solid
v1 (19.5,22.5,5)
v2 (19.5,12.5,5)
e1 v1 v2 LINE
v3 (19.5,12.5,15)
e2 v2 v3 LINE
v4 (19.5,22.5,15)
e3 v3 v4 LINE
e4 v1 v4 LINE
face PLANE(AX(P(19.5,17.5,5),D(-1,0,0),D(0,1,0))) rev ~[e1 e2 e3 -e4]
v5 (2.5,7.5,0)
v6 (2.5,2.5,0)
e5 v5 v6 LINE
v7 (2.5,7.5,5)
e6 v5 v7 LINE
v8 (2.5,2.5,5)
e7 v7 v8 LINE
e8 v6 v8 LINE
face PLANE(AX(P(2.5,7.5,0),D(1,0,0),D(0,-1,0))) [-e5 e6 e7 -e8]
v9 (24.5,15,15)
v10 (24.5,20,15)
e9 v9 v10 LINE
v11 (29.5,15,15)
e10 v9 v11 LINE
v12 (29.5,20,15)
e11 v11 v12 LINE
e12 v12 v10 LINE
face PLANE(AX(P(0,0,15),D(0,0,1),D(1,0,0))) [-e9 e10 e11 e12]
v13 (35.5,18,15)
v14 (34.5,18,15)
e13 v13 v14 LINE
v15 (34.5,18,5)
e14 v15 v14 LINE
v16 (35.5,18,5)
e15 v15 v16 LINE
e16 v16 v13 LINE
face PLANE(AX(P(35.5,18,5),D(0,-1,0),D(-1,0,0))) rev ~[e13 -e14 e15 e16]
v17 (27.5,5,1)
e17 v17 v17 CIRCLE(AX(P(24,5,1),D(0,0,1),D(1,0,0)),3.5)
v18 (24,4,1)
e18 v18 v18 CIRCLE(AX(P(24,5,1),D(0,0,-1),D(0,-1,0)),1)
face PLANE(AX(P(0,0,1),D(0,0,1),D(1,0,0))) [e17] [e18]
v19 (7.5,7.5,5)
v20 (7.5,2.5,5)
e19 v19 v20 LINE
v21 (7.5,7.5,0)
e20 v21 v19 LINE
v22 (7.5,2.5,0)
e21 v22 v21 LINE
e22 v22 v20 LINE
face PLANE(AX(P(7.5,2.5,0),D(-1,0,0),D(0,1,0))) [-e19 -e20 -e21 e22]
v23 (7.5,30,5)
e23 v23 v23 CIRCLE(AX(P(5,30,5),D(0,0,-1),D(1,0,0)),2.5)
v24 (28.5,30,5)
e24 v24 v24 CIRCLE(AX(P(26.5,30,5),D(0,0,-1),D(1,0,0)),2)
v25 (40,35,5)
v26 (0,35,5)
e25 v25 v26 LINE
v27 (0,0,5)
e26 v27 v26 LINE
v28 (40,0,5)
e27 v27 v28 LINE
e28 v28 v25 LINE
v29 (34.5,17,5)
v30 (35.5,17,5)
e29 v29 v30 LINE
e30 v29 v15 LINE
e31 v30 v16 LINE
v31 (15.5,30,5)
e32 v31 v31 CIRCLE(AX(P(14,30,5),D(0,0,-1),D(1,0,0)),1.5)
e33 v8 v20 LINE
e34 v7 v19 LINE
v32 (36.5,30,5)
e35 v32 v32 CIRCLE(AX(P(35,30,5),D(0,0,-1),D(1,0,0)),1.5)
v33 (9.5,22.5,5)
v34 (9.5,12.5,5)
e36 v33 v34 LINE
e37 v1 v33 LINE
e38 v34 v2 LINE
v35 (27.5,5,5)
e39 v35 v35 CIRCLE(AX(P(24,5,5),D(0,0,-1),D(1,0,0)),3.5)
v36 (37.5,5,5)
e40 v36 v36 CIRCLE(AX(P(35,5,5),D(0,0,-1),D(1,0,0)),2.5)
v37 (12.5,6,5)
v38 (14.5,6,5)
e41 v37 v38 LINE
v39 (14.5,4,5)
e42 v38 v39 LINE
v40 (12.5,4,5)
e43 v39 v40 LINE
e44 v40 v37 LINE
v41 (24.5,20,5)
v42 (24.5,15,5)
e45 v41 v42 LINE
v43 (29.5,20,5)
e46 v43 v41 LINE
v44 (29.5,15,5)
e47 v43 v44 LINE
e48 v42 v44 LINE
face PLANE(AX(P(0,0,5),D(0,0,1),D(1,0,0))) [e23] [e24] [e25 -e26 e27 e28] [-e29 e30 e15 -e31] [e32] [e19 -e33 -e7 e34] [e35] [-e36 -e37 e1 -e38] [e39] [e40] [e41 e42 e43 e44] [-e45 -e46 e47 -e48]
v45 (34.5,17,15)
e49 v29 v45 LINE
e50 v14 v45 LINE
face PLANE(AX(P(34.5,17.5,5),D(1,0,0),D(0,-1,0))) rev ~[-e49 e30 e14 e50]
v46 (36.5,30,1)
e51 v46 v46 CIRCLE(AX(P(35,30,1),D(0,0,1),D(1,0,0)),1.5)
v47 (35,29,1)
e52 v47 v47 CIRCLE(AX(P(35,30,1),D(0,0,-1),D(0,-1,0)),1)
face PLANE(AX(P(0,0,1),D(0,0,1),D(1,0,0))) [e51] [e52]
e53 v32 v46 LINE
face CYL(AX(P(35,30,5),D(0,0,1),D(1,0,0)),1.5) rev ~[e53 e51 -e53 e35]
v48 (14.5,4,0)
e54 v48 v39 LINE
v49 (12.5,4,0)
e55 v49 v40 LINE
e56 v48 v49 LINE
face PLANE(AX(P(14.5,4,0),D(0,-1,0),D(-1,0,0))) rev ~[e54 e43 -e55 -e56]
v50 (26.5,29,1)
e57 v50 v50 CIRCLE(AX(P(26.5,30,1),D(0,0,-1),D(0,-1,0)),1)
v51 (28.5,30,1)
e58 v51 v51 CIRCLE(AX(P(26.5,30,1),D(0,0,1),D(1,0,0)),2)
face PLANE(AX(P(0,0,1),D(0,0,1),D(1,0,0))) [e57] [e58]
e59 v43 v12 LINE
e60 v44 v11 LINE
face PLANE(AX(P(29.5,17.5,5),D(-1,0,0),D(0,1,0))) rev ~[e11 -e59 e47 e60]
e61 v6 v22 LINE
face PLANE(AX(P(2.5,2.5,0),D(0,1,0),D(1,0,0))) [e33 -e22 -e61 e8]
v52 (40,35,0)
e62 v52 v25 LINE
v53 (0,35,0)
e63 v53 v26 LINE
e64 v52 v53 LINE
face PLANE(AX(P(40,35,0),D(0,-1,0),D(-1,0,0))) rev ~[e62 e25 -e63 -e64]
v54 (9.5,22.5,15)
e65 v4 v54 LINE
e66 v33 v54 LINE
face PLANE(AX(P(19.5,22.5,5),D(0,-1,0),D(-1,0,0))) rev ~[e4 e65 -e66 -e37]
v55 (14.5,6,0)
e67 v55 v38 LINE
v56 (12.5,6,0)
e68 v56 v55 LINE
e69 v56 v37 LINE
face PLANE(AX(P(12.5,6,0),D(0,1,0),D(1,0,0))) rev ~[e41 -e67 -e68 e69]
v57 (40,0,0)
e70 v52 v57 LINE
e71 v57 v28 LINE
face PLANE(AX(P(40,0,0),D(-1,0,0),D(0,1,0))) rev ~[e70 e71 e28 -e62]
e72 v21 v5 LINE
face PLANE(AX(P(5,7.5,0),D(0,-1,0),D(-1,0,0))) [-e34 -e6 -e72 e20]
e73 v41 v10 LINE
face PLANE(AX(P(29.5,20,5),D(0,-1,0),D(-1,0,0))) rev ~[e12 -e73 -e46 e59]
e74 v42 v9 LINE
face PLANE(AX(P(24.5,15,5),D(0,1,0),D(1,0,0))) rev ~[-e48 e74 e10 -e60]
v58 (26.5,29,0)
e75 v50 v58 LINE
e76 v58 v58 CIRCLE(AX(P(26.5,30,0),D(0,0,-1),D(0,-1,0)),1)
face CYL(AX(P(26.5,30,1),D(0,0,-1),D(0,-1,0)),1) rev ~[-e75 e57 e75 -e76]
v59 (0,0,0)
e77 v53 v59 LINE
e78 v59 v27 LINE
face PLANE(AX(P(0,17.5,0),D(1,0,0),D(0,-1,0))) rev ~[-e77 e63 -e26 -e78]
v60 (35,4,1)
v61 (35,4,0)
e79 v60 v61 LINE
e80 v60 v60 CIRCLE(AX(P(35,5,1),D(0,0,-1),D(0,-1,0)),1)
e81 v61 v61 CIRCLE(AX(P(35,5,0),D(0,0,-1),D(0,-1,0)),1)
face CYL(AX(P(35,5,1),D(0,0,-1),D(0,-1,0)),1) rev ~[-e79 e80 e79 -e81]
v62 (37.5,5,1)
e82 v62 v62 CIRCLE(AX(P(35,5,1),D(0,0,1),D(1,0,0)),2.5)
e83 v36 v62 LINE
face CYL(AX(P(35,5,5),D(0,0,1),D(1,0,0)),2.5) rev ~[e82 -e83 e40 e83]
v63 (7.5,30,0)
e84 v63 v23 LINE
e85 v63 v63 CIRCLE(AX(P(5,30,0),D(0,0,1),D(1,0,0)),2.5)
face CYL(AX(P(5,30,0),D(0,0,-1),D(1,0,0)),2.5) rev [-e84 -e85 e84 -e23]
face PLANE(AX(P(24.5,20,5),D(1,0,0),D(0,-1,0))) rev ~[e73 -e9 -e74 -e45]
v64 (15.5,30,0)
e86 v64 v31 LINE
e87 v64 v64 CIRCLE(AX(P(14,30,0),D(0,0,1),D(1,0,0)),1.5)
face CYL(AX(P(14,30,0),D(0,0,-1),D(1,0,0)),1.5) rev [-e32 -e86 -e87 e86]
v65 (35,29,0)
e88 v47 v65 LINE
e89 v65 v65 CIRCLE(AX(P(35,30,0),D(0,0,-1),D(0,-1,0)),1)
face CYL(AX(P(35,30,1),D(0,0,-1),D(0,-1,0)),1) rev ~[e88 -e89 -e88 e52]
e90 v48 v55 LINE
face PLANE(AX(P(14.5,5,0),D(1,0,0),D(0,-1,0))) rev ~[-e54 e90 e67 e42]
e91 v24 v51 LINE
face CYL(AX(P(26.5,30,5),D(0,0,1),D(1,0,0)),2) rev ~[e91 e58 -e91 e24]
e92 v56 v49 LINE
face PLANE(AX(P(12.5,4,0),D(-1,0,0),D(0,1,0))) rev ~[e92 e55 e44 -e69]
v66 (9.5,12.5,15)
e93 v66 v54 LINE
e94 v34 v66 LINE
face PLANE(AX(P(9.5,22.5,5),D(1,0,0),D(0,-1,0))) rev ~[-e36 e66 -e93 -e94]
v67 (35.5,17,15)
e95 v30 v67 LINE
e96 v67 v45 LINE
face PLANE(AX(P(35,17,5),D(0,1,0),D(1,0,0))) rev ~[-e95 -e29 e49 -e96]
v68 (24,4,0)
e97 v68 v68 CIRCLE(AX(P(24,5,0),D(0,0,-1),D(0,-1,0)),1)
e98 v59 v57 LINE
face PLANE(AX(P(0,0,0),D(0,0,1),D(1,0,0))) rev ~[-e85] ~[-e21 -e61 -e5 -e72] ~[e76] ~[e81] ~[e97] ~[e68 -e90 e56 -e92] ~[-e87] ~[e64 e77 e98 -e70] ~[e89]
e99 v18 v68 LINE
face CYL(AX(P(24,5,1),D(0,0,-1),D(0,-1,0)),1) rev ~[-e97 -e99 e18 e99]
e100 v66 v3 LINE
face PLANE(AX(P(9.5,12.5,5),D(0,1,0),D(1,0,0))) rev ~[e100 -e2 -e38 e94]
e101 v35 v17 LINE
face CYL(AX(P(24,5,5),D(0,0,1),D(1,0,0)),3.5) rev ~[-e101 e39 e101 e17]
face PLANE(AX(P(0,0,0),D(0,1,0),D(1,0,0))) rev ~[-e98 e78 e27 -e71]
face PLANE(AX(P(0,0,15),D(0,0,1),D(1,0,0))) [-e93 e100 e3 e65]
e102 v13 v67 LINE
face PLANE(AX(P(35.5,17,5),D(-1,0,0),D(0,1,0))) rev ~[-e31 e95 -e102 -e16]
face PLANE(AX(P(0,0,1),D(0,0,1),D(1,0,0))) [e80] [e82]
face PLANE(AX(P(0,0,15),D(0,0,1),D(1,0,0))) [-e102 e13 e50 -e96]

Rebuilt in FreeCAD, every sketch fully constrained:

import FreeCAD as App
import Part
import Sketcher

doc = App.newDocument("Part")
body = doc.addObject("PartDesign::Body", "Body")

sketch1 = body.newObject("Sketcher::SketchObject", "Sketch")
sketch1.AttachmentSupport = (doc.getObject("XY_Plane"), [""])
sketch1.MapMode = "FlatFace"
sketch1.addGeometry([
    Part.LineSegment(App.Vector(0, 0, 0), App.Vector(40, 0, 0)),
    Part.LineSegment(App.Vector(40, 0, 0), App.Vector(40, 35, 0)),
    Part.LineSegment(App.Vector(40, 35, 0), App.Vector(0, 35, 0)),
    Part.LineSegment(App.Vector(0, 35, 0), App.Vector(0, 0, 0)),
    Part.LineSegment(App.Vector(2.5, 7.5, 0), App.Vector(7.5, 7.5, 0)),
    Part.LineSegment(App.Vector(7.5, 7.5, 0), App.Vector(7.5, 2.5, 0)),
    Part.LineSegment(App.Vector(7.5, 2.5, 0), App.Vector(2.5, 2.5, 0)),
    Part.LineSegment(App.Vector(2.5, 2.5, 0), App.Vector(2.5, 7.5, 0)),
    Part.LineSegment(App.Vector(12.5, 4, 0), App.Vector(12.5, 6, 0)),
    Part.LineSegment(App.Vector(12.5, 6, 0), App.Vector(14.5, 6, 0)),
    Part.LineSegment(App.Vector(14.5, 6, 0), App.Vector(14.5, 4, 0)),
    Part.LineSegment(App.Vector(14.5, 4, 0), App.Vector(12.5, 4, 0)),
    Part.Circle(App.Vector(14, 30, 0), App.Vector(0, 0, 1), 1.5),
    Part.Circle(App.Vector(5, 30, 0), App.Vector(0, 0, 1), 2.5),
], False)
sketch1.addConstraint([
    Sketcher.Constraint("Coincident", 0, 2, 1, 1),
    Sketcher.Constraint("Coincident", 1, 2, 2, 1),
    Sketcher.Constraint("Coincident", 2, 2, 3, 1),
    Sketcher.Constraint("Coincident", 3, 2, 0, 1),
    Sketcher.Constraint("Coincident", 4, 2, 5, 1),
    Sketcher.Constraint("Coincident", 5, 2, 6, 1),
    Sketcher.Constraint("Coincident", 6, 2, 7, 1),
    Sketcher.Constraint("Coincident", 7, 2, 4, 1),
    Sketcher.Constraint("Coincident", 8, 2, 9, 1),
    Sketcher.Constraint("Coincident", 9, 2, 10, 1),
    Sketcher.Constraint("Coincident", 10, 2, 11, 1),
    Sketcher.Constraint("Coincident", 11, 2, 8, 1),
    Sketcher.Constraint("Horizontal", 0),
    Sketcher.Constraint("Vertical", 1),
    Sketcher.Constraint("Horizontal", 2),
    Sketcher.Constraint("Vertical", 3),
    Sketcher.Constraint("Horizontal", 4),
    Sketcher.Constraint("Vertical", 5),
    Sketcher.Constraint("Horizontal", 6),
    Sketcher.Constraint("Vertical", 7),
    Sketcher.Constraint("Vertical", 8),
    Sketcher.Constraint("Horizontal", 9),
    Sketcher.Constraint("Vertical", 10),
    Sketcher.Constraint("Horizontal", 11),
    Sketcher.Constraint("Coincident", 3, 2, -1, 1),
    Sketcher.Constraint("Horizontal", 12, 3, 13, 3),
    Sketcher.Constraint("Equal", 6, 5),
    Sketcher.Constraint("Equal", 11, 8),
    Sketcher.Constraint("Diameter", 12, 3.0),
    Sketcher.Constraint("Diameter", 13, 5.0),
    Sketcher.Constraint("DistanceX", 0, 1, 0, 2, 40.0),
    Sketcher.Constraint("DistanceX", 4, 1, 4, 2, 5.0),
    Sketcher.Constraint("DistanceX", 9, 1, 9, 2, 2.0),
    Sketcher.Constraint("DistanceY", 1, 1, 1, 2, 35.0),
    Sketcher.Constraint("DistanceY", -1, 1, 12, 3, 30.0),
    Sketcher.Constraint("DistanceX", -1, 1, 13, 3, 5.0),
    Sketcher.Constraint("DistanceX", 13, 3, 12, 3, 9.0),
    Sketcher.Constraint("DistanceX", 4, 2, 8, 2, 5.0),
    Sketcher.Constraint("DistanceY", -1, 1, 8, 2, 6.0),
    Sketcher.Constraint("DistanceX", -1, 1, 4, 2, 7.5),
    Sketcher.Constraint("DistanceY", -1, 1, 4, 2, 7.5),
])
pad1 = body.newObject("PartDesign::Pad", "Pad")
pad1.Profile = sketch1
pad1.Length = 5

sketch2 = body.newObject("Sketcher::SketchObject", "Sketch001")
sketch2.AttachmentSupport = (doc.getObject("XY_Plane"), [""])
sketch2.MapMode = "FlatFace"
sketch2.AttachmentOffset = App.Placement(App.Vector(0, 0, 5), App.Rotation())
sketch2.addGeometry([
    Part.LineSegment(App.Vector(9.5, 22.5, 0), App.Vector(9.5, 12.5, 0)),
    Part.LineSegment(App.Vector(9.5, 12.5, 0), App.Vector(19.5, 12.5, 0)),
    Part.LineSegment(App.Vector(19.5, 12.5, 0), App.Vector(19.5, 22.5, 0)),
    Part.LineSegment(App.Vector(19.5, 22.5, 0), App.Vector(9.5, 22.5, 0)),
    Part.LineSegment(App.Vector(35.5, 17, 0), App.Vector(35.5, 18, 0)),
    Part.LineSegment(App.Vector(35.5, 18, 0), App.Vector(34.5, 18, 0)),
    Part.LineSegment(App.Vector(34.5, 18, 0), App.Vector(34.5, 17, 0)),
    Part.LineSegment(App.Vector(34.5, 17, 0), App.Vector(35.5, 17, 0)),
    Part.LineSegment(App.Vector(24.5, 20, 0), App.Vector(24.5, 15, 0)),
    Part.LineSegment(App.Vector(24.5, 15, 0), App.Vector(29.5, 15, 0)),
    Part.LineSegment(App.Vector(29.5, 15, 0), App.Vector(29.5, 20, 0)),
    Part.LineSegment(App.Vector(29.5, 20, 0), App.Vector(24.5, 20, 0)),
], False)
sketch2.addConstraint([
    Sketcher.Constraint("Coincident", 0, 2, 1, 1),
    Sketcher.Constraint("Coincident", 1, 2, 2, 1),
    Sketcher.Constraint("Coincident", 2, 2, 3, 1),
    Sketcher.Constraint("Coincident", 3, 2, 0, 1),
    Sketcher.Constraint("Coincident", 4, 2, 5, 1),
    Sketcher.Constraint("Coincident", 5, 2, 6, 1),
    Sketcher.Constraint("Coincident", 6, 2, 7, 1),
    Sketcher.Constraint("Coincident", 7, 2, 4, 1),
    Sketcher.Constraint("Coincident", 8, 2, 9, 1),
    Sketcher.Constraint("Coincident", 9, 2, 10, 1),
    Sketcher.Constraint("Coincident", 10, 2, 11, 1),
    Sketcher.Constraint("Coincident", 11, 2, 8, 1),
    Sketcher.Constraint("Vertical", 0),
    Sketcher.Constraint("Horizontal", 1),
    Sketcher.Constraint("Vertical", 2),
    Sketcher.Constraint("Horizontal", 3),
    Sketcher.Constraint("Vertical", 4),
    Sketcher.Constraint("Horizontal", 5),
    Sketcher.Constraint("Vertical", 6),
    Sketcher.Constraint("Horizontal", 7),
    Sketcher.Constraint("Vertical", 8),
    Sketcher.Constraint("Horizontal", 9),
    Sketcher.Constraint("Vertical", 10),
    Sketcher.Constraint("Horizontal", 11),
    Sketcher.Constraint("Equal", 3, 0),
    Sketcher.Constraint("Equal", 7, 4),
    Sketcher.Constraint("Equal", 11, 8),
    Sketcher.Constraint("DistanceX", 1, 1, 1, 2, 10.0),
    Sketcher.Constraint("DistanceX", 5, 2, 5, 1, 1.0),
    Sketcher.Constraint("DistanceX", 9, 1, 9, 2, 5.0),
    Sketcher.Constraint("DistanceX", 3, 2, 5, 2, 25.0),
    Sketcher.Constraint("DistanceX", 1, 2, 8, 2, 5.0),
    Sketcher.Constraint("DistanceY", -1, 1, 0, 2, 12.5),
    Sketcher.Constraint("DistanceY", -1, 1, 4, 2, 18.0),
    Sketcher.Constraint("DistanceY", -1, 1, 8, 2, 15.0),
    Sketcher.Constraint("DistanceX", -1, 1, 0, 2, 9.5),
])
pad2 = body.newObject("PartDesign::Pad", "Pad001")
pad2.Profile = sketch2
pad2.Length = 10

sketch3 = body.newObject("Sketcher::SketchObject", "Sketch002")
sketch3.AttachmentSupport = (doc.getObject("XY_Plane"), [""])
sketch3.MapMode = "FlatFace"
sketch3.AttachmentOffset = App.Placement(App.Vector(0, 0, 5), App.Rotation())
sketch3.addGeometry([
    Part.Circle(App.Vector(35, 5, 0), App.Vector(0, 0, 1), 2.5),
    Part.Circle(App.Vector(35, 30, 0), App.Vector(0, 0, 1), 1.5),
    Part.Circle(App.Vector(24, 5, 0), App.Vector(0, 0, 1), 3.5),
    Part.Circle(App.Vector(26.5, 30, 0), App.Vector(0, 0, 1), 2),
], False)
sketch3.addConstraint([
    Sketcher.Constraint("Horizontal", 0, 3, 2, 3),
    Sketcher.Constraint("Horizontal", 1, 3, 3, 3),
    Sketcher.Constraint("Vertical", 0, 3, 1, 3),
    Sketcher.Constraint("Diameter", 0, 5.0),
    Sketcher.Constraint("Diameter", 1, 3.0),
    Sketcher.Constraint("Diameter", 2, 7.0),
    Sketcher.Constraint("Diameter", 3, 4.0),
    Sketcher.Constraint("DistanceX", -1, 1, 0, 3, 35.0),
    Sketcher.Constraint("DistanceY", -1, 1, 0, 3, 5.0),
    Sketcher.Constraint("DistanceY", -1, 1, 1, 3, 30.0),
    Sketcher.Constraint("DistanceX", 2, 3, 0, 3, 11.0),
    Sketcher.Constraint("DistanceX", 3, 3, 1, 3, 8.5),
])
pocket1 = body.newObject("PartDesign::Pocket", "Pocket")
pocket1.Profile = sketch3
pocket1.Length = 4

sketch4 = body.newObject("Sketcher::SketchObject", "Sketch003")
sketch4.AttachmentSupport = (doc.getObject("XY_Plane"), [""])
sketch4.MapMode = "FlatFace"
sketch4.AttachmentOffset = App.Placement(App.Vector(0, 0, 1), App.Rotation())
sketch4.addGeometry([
    Part.Circle(App.Vector(26.5, 30, 0), App.Vector(0, 0, 1), 1),
    Part.Circle(App.Vector(35, 30, 0), App.Vector(0, 0, 1), 1),
    Part.Circle(App.Vector(24, 5, 0), App.Vector(0, 0, 1), 1),
    Part.Circle(App.Vector(35, 5, 0), App.Vector(0, 0, 1), 1),
], False)
sketch4.addConstraint([
    Sketcher.Constraint("Equal", 0, 1),
    Sketcher.Constraint("Equal", 1, 2),
    Sketcher.Constraint("Equal", 2, 3),
    Sketcher.Constraint("Horizontal", 0, 3, 1, 3),
    Sketcher.Constraint("Horizontal", 2, 3, 3, 3),
    Sketcher.Constraint("Vertical", 1, 3, 3, 3),
    Sketcher.Constraint("Diameter", 0, 2.0),
    Sketcher.Constraint("DistanceY", -1, 1, 0, 3, 30.0),
    Sketcher.Constraint("DistanceX", -1, 1, 1, 3, 35.0),
    Sketcher.Constraint("DistanceX", -1, 1, 2, 3, 24.0),
    Sketcher.Constraint("DistanceY", -1, 1, 2, 3, 5.0),
    Sketcher.Constraint("DistanceX", -1, 1, 0, 3, 26.5),
])
doc.recompute()
hole = body.newObject("PartDesign::Hole", "Hole")
hole.Profile = sketch4
hole.ThreadType = "None"
hole.Diameter = 2
hole.DepthType = "ThroughAll"

doc.recompute()
